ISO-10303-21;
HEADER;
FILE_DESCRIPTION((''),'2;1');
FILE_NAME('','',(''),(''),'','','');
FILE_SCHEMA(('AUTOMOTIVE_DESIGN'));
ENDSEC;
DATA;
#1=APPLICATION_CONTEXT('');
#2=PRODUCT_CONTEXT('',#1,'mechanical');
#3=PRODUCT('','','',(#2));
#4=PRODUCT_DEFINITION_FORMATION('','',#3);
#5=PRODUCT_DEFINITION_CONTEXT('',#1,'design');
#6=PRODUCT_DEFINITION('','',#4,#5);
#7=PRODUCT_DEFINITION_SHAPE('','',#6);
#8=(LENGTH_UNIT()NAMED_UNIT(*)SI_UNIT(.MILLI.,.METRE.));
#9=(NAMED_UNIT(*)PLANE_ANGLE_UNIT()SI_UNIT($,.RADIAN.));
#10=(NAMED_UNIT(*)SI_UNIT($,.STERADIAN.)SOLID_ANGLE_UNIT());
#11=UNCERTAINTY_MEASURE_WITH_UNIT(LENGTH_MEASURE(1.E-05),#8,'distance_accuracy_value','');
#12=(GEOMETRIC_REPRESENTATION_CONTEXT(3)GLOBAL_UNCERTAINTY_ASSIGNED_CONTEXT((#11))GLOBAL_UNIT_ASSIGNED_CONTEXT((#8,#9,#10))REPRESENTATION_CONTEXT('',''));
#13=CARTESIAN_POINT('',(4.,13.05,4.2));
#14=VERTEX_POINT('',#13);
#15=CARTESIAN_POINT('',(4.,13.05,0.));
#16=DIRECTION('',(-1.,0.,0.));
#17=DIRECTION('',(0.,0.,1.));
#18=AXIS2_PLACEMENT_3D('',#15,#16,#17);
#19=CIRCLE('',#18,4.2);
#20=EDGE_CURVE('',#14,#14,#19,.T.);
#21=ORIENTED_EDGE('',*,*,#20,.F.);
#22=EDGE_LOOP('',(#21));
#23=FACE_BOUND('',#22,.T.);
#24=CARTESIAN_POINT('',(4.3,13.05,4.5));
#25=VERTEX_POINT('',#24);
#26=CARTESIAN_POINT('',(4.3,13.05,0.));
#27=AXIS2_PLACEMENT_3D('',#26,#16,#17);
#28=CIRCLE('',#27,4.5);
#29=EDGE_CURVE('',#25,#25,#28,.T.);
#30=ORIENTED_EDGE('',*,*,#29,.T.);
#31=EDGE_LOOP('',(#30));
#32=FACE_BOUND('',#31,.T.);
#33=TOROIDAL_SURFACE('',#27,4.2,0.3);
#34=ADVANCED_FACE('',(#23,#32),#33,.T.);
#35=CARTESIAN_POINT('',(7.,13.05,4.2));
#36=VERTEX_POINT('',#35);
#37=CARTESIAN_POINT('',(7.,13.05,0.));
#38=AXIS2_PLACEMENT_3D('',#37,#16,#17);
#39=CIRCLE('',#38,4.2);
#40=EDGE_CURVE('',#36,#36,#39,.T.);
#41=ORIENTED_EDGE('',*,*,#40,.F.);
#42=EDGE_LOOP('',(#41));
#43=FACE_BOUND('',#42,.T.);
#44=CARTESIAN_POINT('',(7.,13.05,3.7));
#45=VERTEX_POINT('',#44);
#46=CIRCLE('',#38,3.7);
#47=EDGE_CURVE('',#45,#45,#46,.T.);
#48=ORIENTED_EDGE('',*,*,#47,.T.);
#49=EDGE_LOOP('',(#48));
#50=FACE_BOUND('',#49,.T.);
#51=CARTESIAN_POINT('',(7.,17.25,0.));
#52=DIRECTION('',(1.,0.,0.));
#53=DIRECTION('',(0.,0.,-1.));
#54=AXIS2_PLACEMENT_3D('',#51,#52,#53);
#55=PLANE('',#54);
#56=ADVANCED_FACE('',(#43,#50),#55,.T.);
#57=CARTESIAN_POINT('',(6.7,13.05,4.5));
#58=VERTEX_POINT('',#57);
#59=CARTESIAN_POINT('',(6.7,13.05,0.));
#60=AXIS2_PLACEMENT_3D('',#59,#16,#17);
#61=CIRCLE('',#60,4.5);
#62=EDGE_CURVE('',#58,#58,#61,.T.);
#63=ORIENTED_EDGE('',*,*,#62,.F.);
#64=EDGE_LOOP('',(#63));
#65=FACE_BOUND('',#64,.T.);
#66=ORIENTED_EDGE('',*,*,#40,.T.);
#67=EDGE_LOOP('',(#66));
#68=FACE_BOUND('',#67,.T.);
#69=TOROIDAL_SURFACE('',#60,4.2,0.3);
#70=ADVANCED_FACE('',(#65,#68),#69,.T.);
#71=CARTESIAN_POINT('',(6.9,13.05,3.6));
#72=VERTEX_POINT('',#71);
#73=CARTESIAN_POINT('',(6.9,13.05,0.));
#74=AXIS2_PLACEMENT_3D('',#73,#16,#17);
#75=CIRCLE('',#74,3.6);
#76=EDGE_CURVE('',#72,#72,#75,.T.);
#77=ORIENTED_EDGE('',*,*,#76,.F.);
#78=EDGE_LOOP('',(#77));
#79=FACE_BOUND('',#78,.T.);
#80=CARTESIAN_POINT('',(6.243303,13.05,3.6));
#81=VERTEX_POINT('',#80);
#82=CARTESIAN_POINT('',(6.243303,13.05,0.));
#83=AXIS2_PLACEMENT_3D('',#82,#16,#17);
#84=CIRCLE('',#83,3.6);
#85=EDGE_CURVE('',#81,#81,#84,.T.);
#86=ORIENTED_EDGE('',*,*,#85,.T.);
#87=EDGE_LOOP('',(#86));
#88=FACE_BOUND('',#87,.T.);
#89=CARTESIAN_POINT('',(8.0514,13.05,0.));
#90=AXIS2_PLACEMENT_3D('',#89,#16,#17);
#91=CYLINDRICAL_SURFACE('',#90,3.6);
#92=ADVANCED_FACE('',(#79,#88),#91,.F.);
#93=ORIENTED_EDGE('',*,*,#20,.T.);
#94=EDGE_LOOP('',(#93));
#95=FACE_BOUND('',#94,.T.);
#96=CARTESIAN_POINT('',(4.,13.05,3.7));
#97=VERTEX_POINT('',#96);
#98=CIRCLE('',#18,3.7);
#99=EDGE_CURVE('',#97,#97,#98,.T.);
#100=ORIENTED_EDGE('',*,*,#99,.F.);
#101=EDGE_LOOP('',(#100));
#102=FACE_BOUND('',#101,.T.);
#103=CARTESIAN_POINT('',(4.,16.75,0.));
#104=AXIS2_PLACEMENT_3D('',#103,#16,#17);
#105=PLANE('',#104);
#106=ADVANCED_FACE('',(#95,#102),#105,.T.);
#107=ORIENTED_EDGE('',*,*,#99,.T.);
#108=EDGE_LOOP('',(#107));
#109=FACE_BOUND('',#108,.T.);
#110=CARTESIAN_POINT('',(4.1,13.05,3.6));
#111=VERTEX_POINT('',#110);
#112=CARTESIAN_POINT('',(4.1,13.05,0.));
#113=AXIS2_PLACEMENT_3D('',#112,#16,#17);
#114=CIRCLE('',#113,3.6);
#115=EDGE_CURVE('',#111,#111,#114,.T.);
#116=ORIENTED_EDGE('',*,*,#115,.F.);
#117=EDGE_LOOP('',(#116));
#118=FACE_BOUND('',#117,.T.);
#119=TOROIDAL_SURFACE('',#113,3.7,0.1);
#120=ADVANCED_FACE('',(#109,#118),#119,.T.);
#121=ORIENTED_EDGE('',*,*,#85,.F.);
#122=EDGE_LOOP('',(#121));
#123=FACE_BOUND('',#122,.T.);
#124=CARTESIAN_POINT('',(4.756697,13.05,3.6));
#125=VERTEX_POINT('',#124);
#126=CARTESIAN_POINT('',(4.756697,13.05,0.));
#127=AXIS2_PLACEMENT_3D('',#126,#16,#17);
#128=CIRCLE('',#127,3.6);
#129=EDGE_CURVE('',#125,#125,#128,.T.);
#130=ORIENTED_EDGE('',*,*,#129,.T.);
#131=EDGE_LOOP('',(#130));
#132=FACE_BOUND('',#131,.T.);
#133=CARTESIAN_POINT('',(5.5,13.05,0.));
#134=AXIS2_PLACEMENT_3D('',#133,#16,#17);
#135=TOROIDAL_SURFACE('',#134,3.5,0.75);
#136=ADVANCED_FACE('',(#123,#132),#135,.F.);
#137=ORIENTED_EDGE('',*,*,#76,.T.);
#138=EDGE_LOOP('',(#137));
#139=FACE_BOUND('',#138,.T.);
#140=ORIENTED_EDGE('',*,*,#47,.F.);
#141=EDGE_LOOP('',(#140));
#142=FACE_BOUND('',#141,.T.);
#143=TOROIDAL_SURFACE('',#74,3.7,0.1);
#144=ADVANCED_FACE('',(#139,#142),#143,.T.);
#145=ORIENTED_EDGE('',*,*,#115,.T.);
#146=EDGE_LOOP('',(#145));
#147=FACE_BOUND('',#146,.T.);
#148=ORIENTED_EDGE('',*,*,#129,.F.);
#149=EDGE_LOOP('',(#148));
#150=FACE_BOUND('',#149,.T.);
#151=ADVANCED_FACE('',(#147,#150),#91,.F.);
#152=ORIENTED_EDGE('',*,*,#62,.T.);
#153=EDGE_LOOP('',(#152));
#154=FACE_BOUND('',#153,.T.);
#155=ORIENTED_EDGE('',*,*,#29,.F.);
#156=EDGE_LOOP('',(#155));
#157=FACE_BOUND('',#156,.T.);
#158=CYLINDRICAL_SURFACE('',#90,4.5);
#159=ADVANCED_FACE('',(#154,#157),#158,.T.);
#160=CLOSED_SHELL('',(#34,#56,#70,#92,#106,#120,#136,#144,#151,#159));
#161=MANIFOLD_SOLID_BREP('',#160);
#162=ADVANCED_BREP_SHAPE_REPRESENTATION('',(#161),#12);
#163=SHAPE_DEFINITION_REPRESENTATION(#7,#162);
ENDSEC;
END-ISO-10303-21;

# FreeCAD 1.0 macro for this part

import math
import FreeCAD as App
import Part
import Sketcher

doc = App.newDocument("Part")
body = doc.addObject("PartDesign::Body", "Body")

# Sketch on XY plane
sketch1 = body.newObject("Sketcher::SketchObject", "Sketch")
sketch1.AttachmentSupport = (doc.getObject("XY_Plane"), [""])
sketch1.MapMode = "FlatFace"
sketch1.addGeometry([
    Part.LineSegment(App.Vector(6.9, 16.65, 0), App.Vector(6.24, 16.65, 0)),  # 0
    Part.ArcOfCircle(Part.Circle(App.Vector(5.5, 16.55, 0), App.Vector(0, 0, 1), 0.75), math.radians(8), math.radians(172)),  # 1
    Part.LineSegment(App.Vector(4.76, 16.65, 0), App.Vector(4.1, 16.65, 0)),  # 2
    Part.ArcOfCircle(Part.Circle(App.Vector(4.1, 16.75, 0), App.Vector(0, 0, 1), 0.1), math.radians(180), math.radians(270)),  # 3
    Part.LineSegment(App.Vector(4, 16.75, 0), App.Vector(4, 17.25, 0)),  # 4
    Part.ArcOfCircle(Part.Circle(App.Vector(4.3, 17.25, 0), App.Vector(0, 0, 1), 0.3), math.radians(90), math.radians(180)),  # 5
    Part.LineSegment(App.Vector(4.3, 17.55, 0), App.Vector(6.7, 17.55, 0)),  # 6
    Part.ArcOfCircle(Part.Circle(App.Vector(6.7, 17.25, 0), App.Vector(0, 0, 1), 0.3), math.radians(0), math.radians(90)),  # 7
    Part.LineSegment(App.Vector(7, 17.25, 0), App.Vector(7, 16.75, 0)),  # 8
    Part.ArcOfCircle(Part.Circle(App.Vector(6.9, 16.75, 0), App.Vector(0, 0, 1), 0.1), math.radians(-90), math.radians(0)),  # 9
], False)
sketch1.addGeometry(Part.LineSegment(App.Vector(7, 13.05, 0), App.Vector(4, 13.05, 0)), True)  # axis
sketch1.addConstraint([
    Sketcher.Constraint("Coincident", 0, 2, 1, 1),
    Sketcher.Constraint("Coincident", 1, 2, 2, 1),
    Sketcher.Constraint("Tangent", 2, 2, 3, 2),
    Sketcher.Constraint("Tangent", 3, 1, 4, 1),
    Sketcher.Constraint("Tangent", 4, 2, 5, 2),
    Sketcher.Constraint("Tangent", 5, 1, 6, 1),
    Sketcher.Constraint("Tangent", 6, 2, 7, 2),
    Sketcher.Constraint("Tangent", 7, 1, 8, 1),
    Sketcher.Constraint("Tangent", 8, 2, 9, 2),
    Sketcher.Constraint("Tangent", 9, 1, 0, 1),
    Sketcher.Constraint("Horizontal", 0),
    Sketcher.Constraint("Horizontal", 2),
    Sketcher.Constraint("Vertical", 4),
    Sketcher.Constraint("Horizontal", 6),
    Sketcher.Constraint("Vertical", 8),
    Sketcher.Constraint("Horizontal", 10),
    Sketcher.Constraint("Equal", 5, 7),
    Sketcher.Constraint("Equal", 3, 9),
    Sketcher.Constraint("Horizontal", 3, 3, 9, 3),
    Sketcher.Constraint("Vertical", 8, 2, 10, 1),
    Sketcher.Constraint("Vertical", 4, 2, 10, 2),
    Sketcher.Constraint("Equal", 0, 2),
    Sketcher.Constraint("Radius", 3, 0.1),
    Sketcher.Constraint("Radius", 5, 0.3),
    Sketcher.Constraint("DistanceX", 10, 2, 10, 1, 3.0),
    Sketcher.Constraint("Radius", 1, 0.75),
    Sketcher.Constraint("DistanceY", 4, 1, 4, 2, 0.5),
    Sketcher.Constraint("DistanceX", -1, 1, 3, 1, 4.0),
    Sketcher.Constraint("DistanceY", 1, 3, 6, 2, 1.0),
    Sketcher.Constraint("DistanceY", 10, 1, 9, 1, 3.6),
    Sketcher.Constraint("DistanceY", -1, 1, 1, 3, 16.55),
])
revolution = body.newObject("PartDesign::Revolution", "Revolution")
revolution.Profile = sketch1
revolution.ReferenceAxis = (sketch1, ["Axis0"])
revolution.Angle = 360

doc.recompute()
